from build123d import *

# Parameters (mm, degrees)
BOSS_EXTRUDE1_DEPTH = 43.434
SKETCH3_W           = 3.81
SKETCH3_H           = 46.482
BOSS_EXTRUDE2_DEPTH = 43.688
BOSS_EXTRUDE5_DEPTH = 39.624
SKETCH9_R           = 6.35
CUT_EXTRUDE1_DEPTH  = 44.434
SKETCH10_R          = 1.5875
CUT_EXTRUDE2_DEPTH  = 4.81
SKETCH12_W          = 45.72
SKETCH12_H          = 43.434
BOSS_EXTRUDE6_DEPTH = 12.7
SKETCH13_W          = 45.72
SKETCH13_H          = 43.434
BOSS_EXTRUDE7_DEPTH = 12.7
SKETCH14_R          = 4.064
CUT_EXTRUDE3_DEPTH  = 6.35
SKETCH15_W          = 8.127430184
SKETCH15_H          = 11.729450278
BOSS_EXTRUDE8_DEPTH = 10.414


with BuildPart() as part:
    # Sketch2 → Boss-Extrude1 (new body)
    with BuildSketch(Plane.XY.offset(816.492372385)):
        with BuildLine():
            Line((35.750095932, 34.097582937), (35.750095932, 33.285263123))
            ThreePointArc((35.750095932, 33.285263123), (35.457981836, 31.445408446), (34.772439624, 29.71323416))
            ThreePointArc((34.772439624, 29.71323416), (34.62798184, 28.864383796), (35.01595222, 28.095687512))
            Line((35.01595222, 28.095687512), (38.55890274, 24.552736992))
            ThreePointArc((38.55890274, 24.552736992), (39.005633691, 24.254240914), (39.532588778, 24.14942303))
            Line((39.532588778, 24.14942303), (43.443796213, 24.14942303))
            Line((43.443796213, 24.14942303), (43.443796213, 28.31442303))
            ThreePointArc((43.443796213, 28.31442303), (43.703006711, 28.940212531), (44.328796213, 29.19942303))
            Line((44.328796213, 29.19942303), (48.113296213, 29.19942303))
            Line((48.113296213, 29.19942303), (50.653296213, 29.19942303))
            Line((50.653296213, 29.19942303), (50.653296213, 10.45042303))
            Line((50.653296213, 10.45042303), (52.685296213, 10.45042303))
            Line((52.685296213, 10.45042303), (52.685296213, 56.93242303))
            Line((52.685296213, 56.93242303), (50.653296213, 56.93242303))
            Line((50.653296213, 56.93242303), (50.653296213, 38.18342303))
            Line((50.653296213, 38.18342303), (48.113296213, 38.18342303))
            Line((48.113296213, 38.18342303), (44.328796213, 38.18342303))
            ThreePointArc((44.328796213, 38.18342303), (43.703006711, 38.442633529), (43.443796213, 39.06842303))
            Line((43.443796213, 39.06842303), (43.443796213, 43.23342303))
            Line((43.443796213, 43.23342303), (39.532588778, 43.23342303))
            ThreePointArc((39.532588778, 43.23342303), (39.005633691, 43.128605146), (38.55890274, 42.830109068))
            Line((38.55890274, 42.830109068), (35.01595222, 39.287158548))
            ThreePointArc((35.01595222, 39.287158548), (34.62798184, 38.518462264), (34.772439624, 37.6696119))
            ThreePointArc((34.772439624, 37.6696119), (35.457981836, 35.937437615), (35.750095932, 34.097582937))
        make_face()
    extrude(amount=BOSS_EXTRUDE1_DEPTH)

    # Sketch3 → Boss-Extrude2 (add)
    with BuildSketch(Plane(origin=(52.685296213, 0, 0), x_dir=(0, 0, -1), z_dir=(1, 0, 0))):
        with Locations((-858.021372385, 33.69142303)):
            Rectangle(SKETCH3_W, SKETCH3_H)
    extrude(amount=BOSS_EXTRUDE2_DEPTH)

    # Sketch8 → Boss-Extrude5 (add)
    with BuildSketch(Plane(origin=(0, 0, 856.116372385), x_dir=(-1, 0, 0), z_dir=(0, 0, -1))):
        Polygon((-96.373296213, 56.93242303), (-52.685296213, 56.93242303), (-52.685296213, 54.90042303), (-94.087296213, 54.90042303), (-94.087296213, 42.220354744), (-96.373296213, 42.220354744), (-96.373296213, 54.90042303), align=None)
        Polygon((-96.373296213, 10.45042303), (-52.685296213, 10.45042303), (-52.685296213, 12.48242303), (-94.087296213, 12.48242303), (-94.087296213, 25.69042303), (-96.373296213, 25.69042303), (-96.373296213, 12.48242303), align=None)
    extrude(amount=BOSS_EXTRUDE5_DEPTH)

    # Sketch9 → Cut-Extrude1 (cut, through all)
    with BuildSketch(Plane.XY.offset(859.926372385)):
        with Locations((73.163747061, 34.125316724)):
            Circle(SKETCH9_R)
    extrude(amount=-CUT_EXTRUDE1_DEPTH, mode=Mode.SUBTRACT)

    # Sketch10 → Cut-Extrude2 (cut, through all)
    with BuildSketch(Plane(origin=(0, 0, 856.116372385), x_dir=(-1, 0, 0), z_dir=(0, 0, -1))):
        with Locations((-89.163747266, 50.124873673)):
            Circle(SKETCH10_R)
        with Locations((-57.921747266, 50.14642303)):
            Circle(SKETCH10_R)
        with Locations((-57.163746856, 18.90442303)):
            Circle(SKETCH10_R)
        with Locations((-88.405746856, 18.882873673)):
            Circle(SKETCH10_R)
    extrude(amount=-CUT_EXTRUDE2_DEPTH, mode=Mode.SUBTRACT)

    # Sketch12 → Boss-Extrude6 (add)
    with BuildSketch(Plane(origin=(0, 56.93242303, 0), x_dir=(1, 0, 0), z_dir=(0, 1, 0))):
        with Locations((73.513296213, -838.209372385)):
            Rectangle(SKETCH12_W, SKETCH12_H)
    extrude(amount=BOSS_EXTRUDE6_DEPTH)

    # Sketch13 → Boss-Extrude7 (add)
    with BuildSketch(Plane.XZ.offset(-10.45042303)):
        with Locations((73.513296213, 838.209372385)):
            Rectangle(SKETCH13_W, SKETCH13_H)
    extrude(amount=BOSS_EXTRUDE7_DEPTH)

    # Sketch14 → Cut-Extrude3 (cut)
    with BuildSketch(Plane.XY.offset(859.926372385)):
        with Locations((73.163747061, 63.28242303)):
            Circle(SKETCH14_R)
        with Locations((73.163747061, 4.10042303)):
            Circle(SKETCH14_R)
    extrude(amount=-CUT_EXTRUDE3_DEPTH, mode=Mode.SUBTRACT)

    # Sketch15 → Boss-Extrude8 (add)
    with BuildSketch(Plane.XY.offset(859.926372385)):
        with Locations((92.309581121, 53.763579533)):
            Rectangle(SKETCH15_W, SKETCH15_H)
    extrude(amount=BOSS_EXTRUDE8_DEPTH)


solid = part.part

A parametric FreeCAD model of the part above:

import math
import FreeCAD as App
import Part
import Sketcher
from FreeCAD import Vector
Q = App.Units.Quantity

doc = App.newDocument("Part")
body = doc.addObject("PartDesign::Body", "Body")

sketch1 = body.newObject("Sketcher::SketchObject", "Sketch")
sketch1.AttachmentSupport = (doc.getObject("XY_Plane"), [""])
sketch1.MapMode = "FlatFace"
sketch1.AttachmentOffset = App.Placement(Vector(0, 0, 816.492372), App.Rotation())
sketch1.addGeometry(Part.LineSegment(Vector(35.8, 34.1, 0), Vector(35.8, 33.3, 0)), False)
sketch1.addGeometry(Part.ArcOfCircle(Part.Circle(Vector(27.3, 33.7, 0), Vector(0, 0, 1), 8.5), math.radians(-28), math.radians(-3)), False)
sketch1.addGeometry(Part.ArcOfCircle(Part.Circle(Vector(36, 29.1, 0), Vector(0, 0, 1), 1.4), math.radians(152), math.radians(225)), False)
sketch1.addGeometry(Part.LineSegment(Vector(35, 28.1, 0), Vector(38.6, 24.6, 0)), False)
sketch1.addGeometry(Part.ArcOfCircle(Part.Circle(Vector(39.5, 25.5, 0), Vector(0, 0, 1), 1.4), math.radians(-135), math.radians(-90)), False)
sketch1.addGeometry(Part.LineSegment(Vector(39.5, 24.1, 0), Vector(43.4, 24.1, 0)), False)
sketch1.addGeometry(Part.LineSegment(Vector(43.4, 24.1, 0), Vector(43.4, 28.3, 0)), False)
sketch1.addGeometry(Part.ArcOfCircle(Part.Circle(Vector(44.3, 28.3, 0), Vector(0, 0, 1), 0.9), math.radians(90), math.radians(180)), False)
sketch1.addGeometry(Part.LineSegment(Vector(44.3, 29.2, 0), Vector(50.7, 29.2, 0)), False)
sketch1.addGeometry(Part.LineSegment(Vector(50.7, 29.2, 0), Vector(50.7, 10.5, 0)), False)
sketch1.addGeometry(Part.LineSegment(Vector(50.7, 10.5, 0), Vector(52.7, 10.5, 0)), False)
sketch1.addGeometry(Part.LineSegment(Vector(52.7, 10.5, 0), Vector(52.7, 56.9, 0)), False)
sketch1.addGeometry(Part.LineSegment(Vector(52.7, 56.9, 0), Vector(50.7, 56.9, 0)), False)
sketch1.addGeometry(Part.LineSegment(Vector(50.7, 56.9, 0), Vector(50.7, 38.2, 0)), False)
sketch1.addGeometry(Part.LineSegment(Vector(50.7, 38.2, 0), Vector(44.3, 38.2, 0)), False)
sketch1.addGeometry(Part.ArcOfCircle(Part.Circle(Vector(44.3, 39.1, 0), Vector(0, 0, 1), 0.9), math.radians(180), math.radians(270)), False)
sketch1.addGeometry(Part.LineSegment(Vector(43.4, 39.1, 0), Vector(43.4, 43.2, 0)), False)
sketch1.addGeometry(Part.LineSegment(Vector(43.4, 43.2, 0), Vector(39.5, 43.2, 0)), False)
sketch1.addGeometry(Part.ArcOfCircle(Part.Circle(Vector(39.5, 41.9, 0), Vector(0, 0, 1), 1.4), math.radians(90), math.radians(135)), False)
sketch1.addGeometry(Part.LineSegment(Vector(38.6, 42.8, 0), Vector(35, 39.3, 0)), False)
sketch1.addGeometry(Part.ArcOfCircle(Part.Circle(Vector(36, 38.3, 0), Vector(0, 0, 1), 1.4), math.radians(135), math.radians(208)), False)
sketch1.addGeometry(Part.ArcOfCircle(Part.Circle(Vector(27.3, 33.7, 0), Vector(0, 0, 1), 8.5), math.radians(3), math.radians(28)), False)
sketch1.addConstraint(Sketcher.Constraint("Coincident", 0, 2, 1, 2))
sketch1.addConstraint(Sketcher.Constraint("Tangent", 1, 1, 2, 1))
sketch1.addConstraint(Sketcher.Constraint("Tangent", 2, 2, 3, 1))
sketch1.addConstraint(Sketcher.Constraint("Tangent", 3, 2, 4, 1))
sketch1.addConstraint(Sketcher.Constraint("Tangent", 4, 2, 5, 1))
sketch1.addConstraint(Sketcher.Constraint("Coincident", 5, 2, 6, 1))
sketch1.addConstraint(Sketcher.Constraint("Tangent", 6, 2, 7, 2))
sketch1.addConstraint(Sketcher.Constraint("Tangent", 7, 1, 8, 1))
sketch1.addConstraint(Sketcher.Constraint("Coincident", 8, 2, 9, 1))
sketch1.addConstraint(Sketcher.Constraint("Coincident", 9, 2, 10, 1))
sketch1.addConstraint(Sketcher.Constraint("Coincident", 10, 2, 11, 1))
sketch1.addConstraint(Sketcher.Constraint("Coincident", 11, 2, 12, 1))
sketch1.addConstraint(Sketcher.Constraint("Coincident", 12, 2, 13, 1))
sketch1.addConstraint(Sketcher.Constraint("Coincident", 13, 2, 14, 1))
sketch1.addConstraint(Sketcher.Constraint("Tangent", 14, 2, 15, 2))
sketch1.addConstraint(Sketcher.Constraint("Tangent", 15, 1, 16, 1))
sketch1.addConstraint(Sketcher.Constraint("Coincident", 16, 2, 17, 1))
sketch1.addConstraint(Sketcher.Constraint("Tangent", 17, 2, 18, 1))
sketch1.addConstraint(Sketcher.Constraint("Tangent", 18, 2, 19, 1))
sketch1.addConstraint(Sketcher.Constraint("Tangent", 19, 2, 20, 1))
sketch1.addConstraint(Sketcher.Constraint("Tangent", 20, 2, 21, 2))
sketch1.addConstraint(Sketcher.Constraint("Coincident", 21, 1, 0, 1))
sketch1.addConstraint(Sketcher.Constraint("Vertical", 0))
sketch1.addConstraint(Sketcher.Constraint("Horizontal", 5))
sketch1.addConstraint(Sketcher.Constraint("Vertical", 6))
sketch1.addConstraint(Sketcher.Constraint("Horizontal", 8))
sketch1.addConstraint(Sketcher.Constraint("Vertical", 9))
sketch1.addConstraint(Sketcher.Constraint("Horizontal", 10))
sketch1.addConstraint(Sketcher.Constraint("Vertical", 11))
sketch1.addConstraint(Sketcher.Constraint("Horizontal", 12))
sketch1.addConstraint(Sketcher.Constraint("Vertical", 13))
sketch1.addConstraint(Sketcher.Constraint("Horizontal", 14))
sketch1.addConstraint(Sketcher.Constraint("Vertical", 16))
sketch1.addConstraint(Sketcher.Constraint("Horizontal", 17))
sketch1.addConstraint(Sketcher.Constraint("Coincident", 21, 3, 1, 3))
sketch1.addConstraint(Sketcher.Constraint("Equal", 2, 4))
sketch1.addConstraint(Sketcher.Constraint("Equal", 7, 15))
sketch1.addConstraint(Sketcher.Constraint("Equal", 4, 18))
sketch1.addConstraint(Sketcher.Constraint("Equal", 18, 20))
sketch1.addConstraint(Sketcher.Constraint("Equal", 1, 21))
sketch1.addConstraint(Sketcher.Constraint("Perpendicular", 3, 19))
sketch1.addConstraint(Sketcher.Constraint("Vertical", 7, 3, 15, 3))
sketch1.addConstraint(Sketcher.Constraint("Vertical", 4, 3, 18, 3))
sketch1.addConstraint(Sketcher.Constraint("Vertical", 2, 3, 20, 3))
sketch1.addConstraint(Sketcher.Constraint("Vertical", 9, 2, 12, 2))
sketch1.addConstraint(Sketcher.Constraint("Vertical", 3, 2, 18, 2))
sketch1.addConstraint(Sketcher.Constraint("Equal", 9, 13))
sketch1.addConstraint(Sketcher.Constraint("Equal", 6, 16))
sketch1.addConstraint(Sketcher.Constraint("DistanceX", 10, 1, 10, 2, Q("0.08 in")))
sketch1.addConstraint(Sketcher.Constraint("DistanceY", 11, 1, 11, 2, Q("1.83 in")))
sketch1.addConstraint(Sketcher.Constraint("Radius", 1, 8.508))
sketch1.addConstraint(Sketcher.Constraint("Radius", 2, 1.377))
sketch1.addConstraint(Sketcher.Constraint("Radius", 7, 0.885))
sketch1.addConstraint(Sketcher.Constraint("DistanceX", 8, 1, 8, 2, 6.3245))
sketch1.addConstraint(Sketcher.Constraint("DistanceY", 6, 1, 6, 2, 4.165))
sketch1.addConstraint(Sketcher.Constraint("DistanceY", 9, 2, 9, 1, 18.749))
sketch1.addConstraint(Sketcher.Constraint("DistanceY", 0, 2, 0, 1, 0.81232))
sketch1.addConstraint(Sketcher.Constraint("DistanceX", 1, 3, 7, 3, 17.077))
sketch1.addConstraint(Sketcher.Constraint("DistanceY", 2, 3, 20, 3, 9.244099))
sketch1.addConstraint(Sketcher.Constraint("DistanceX", -1, 1, 2, 3, 35.989638))
sketch1.addConstraint(Sketcher.Constraint("DistanceY", -1, 1, 18, 2, 42.830109))
pad1 = body.newObject("PartDesign::Pad", "Pad")
pad1.Profile = sketch1
pad1.Length = Q("1.71 in")

sketch2 = body.newObject("Sketcher::SketchObject", "Sketch001")
sketch2.AttachmentSupport = (doc.getObject("YZ_Plane"), [""])
sketch2.MapMode = "FlatFace"
sketch2.AttachmentOffset = App.Placement(Vector(0, 0, 52.685296), App.Rotation())
sketch2.addGeometry(Part.LineSegment(Vector(56.9, 859.9, 0), Vector(10.5, 859.9, 0)), False)
sketch2.addGeometry(Part.LineSegment(Vector(10.5, 859.9, 0), Vector(10.5, 856.1, 0)), False)
sketch2.addGeometry(Part.LineSegment(Vector(10.5, 856.1, 0), Vector(56.9, 856.1, 0)), False)
sketch2.addGeometry(Part.LineSegment(Vector(56.9, 856.1, 0), Vector(56.9, 859.9, 0)), False)
sketch2.addConstraint(Sketcher.Constraint("Coincident", 0, 2, 1, 1))
sketch2.addConstraint(Sketcher.Constraint("Coincident", 1, 2, 2, 1))
sketch2.addConstraint(Sketcher.Constraint("Coincident", 2, 2, 3, 1))
sketch2.addConstraint(Sketcher.Constraint("Coincident", 3, 2, 0, 1))
sketch2.addConstraint(Sketcher.Constraint("Horizontal", 0))
sketch2.addConstraint(Sketcher.Constraint("Vertical", 1))
sketch2.addConstraint(Sketcher.Constraint("Horizontal", 2))
sketch2.addConstraint(Sketcher.Constraint("Vertical", 3))
sketch2.addConstraint(Sketcher.Constraint("DistanceX", 0, 2, 0, 1, Q("1.83 in")))
sketch2.addConstraint(Sketcher.Constraint("DistanceY", 1, 2, 1, 1, Q("0.15 in")))
sketch2.addConstraint(Sketcher.Constraint("DistanceX", -1, 1, 0, 2, 10.450423))
sketch2.addConstraint(Sketcher.Constraint("DistanceY", -1, 1, 0, 2, 859.926372))
pad2 = body.newObject("PartDesign::Pad", "Pad001")
pad2.Profile = sketch2
pad2.Length = Q("1.72 in")

sketch3 = body.newObject("Sketcher::SketchObject", "Sketch002")
sketch3.AttachmentSupport = (doc.getObject("XY_Plane"), [""])
sketch3.MapMode = "FlatFace"
sketch3.AttachmentOffset = App.Placement(Vector(0, 0, 856.116372), App.Rotation())
sketch3.addGeometry(Part.LineSegment(Vector(52.7, 56.9, 0), Vector(96.4, 56.9, 0)), False)
sketch3.addGeometry(Part.LineSegment(Vector(96.4, 56.9, 0), Vector(96.4, 42.2, 0)), False)
sketch3.addGeometry(Part.LineSegment(Vector(96.4, 42.2, 0), Vector(94.1, 42.2, 0)), False)
sketch3.addGeometry(Part.LineSegment(Vector(94.1, 42.2, 0), Vector(94.1, 54.9, 0)), False)
sketch3.addGeometry(Part.LineSegment(Vector(94.1, 54.9, 0), Vector(52.7, 54.9, 0)), False)
sketch3.addGeometry(Part.LineSegment(Vector(52.7, 54.9, 0), Vector(52.7, 56.9, 0)), False)
sketch3.addGeometry(Part.LineSegment(Vector(96.4, 10.5, 0), Vector(52.7, 10.5, 0)), False)
sketch3.addGeometry(Part.LineSegment(Vector(52.7, 10.5, 0), Vector(52.7, 12.5, 0)), False)
sketch3.addGeometry(Part.LineSegment(Vector(52.7, 12.5, 0), Vector(94.1, 12.5, 0)), False)
sketch3.addGeometry(Part.LineSegment(Vector(94.1, 12.5, 0), Vector(94.1, 25.7, 0)), False)
sketch3.addGeometry(Part.LineSegment(Vector(94.1, 25.7, 0), Vector(96.4, 25.7, 0)), False)
sketch3.addGeometry(Part.LineSegment(Vector(96.4, 25.7, 0), Vector(96.4, 10.5, 0)), False)
sketch3.addConstraint(Sketcher.Constraint("Coincident", 0, 2, 1, 1))
sketch3.addConstraint(Sketcher.Constraint("Coincident", 1, 2, 2, 1))
sketch3.addConstraint(Sketcher.Constraint("Coincident", 2, 2, 3, 1))
sketch3.addConstraint(Sketcher.Constraint("Coincident", 3, 2, 4, 1))
sketch3.addConstraint(Sketcher.Constraint("Coincident", 4, 2, 5, 1))
sketch3.addConstraint(Sketcher.Constraint("Coincident", 5, 2, 0, 1))
sketch3.addConstraint(Sketcher.Constraint("Coincident", 6, 2, 7, 1))
sketch3.addConstraint(Sketcher.Constraint("Coincident", 7, 2, 8, 1))
sketch3.addConstraint(Sketcher.Constraint("Coincident", 8, 2, 9, 1))
sketch3.addConstraint(Sketcher.Constraint("Coincident", 9, 2, 10, 1))
sketch3.addConstraint(Sketcher.Constraint("Coincident", 10, 2, 11, 1))
sketch3.addConstraint(Sketcher.Constraint("Coincident", 11, 2, 6, 1))
sketch3.addConstraint(Sketcher.Constraint("Horizontal", 0))
sketch3.addConstraint(Sketcher.Constraint("Vertical", 1))
sketch3.addConstraint(Sketcher.Constraint("Horizontal", 2))
sketch3.addConstraint(Sketcher.Constraint("Vertical", 3))
sketch3.addConstraint(Sketcher.Constraint("Horizontal", 4))
sketch3.addConstraint(Sketcher.Constraint("Vertical", 5))
sketch3.addConstraint(Sketcher.Constraint("Horizontal", 6))
sketch3.addConstraint(Sketcher.Constraint("Vertical", 7))
sketch3.addConstraint(Sketcher.Constraint("Horizontal", 8))
sketch3.addConstraint(Sketcher.Constraint("Vertical", 9))
sketch3.addConstraint(Sketcher.Constraint("Horizontal", 10))
sketch3.addConstraint(Sketcher.Constraint("Vertical", 11))
sketch3.addConstraint(Sketcher.Constraint("Vertical", 5, 2, 6, 2))
sketch3.addConstraint(Sketcher.Constraint("Vertical", 3, 2, 8, 2))
sketch3.addConstraint(Sketcher.Constraint("Vertical", 1, 2, 10, 2))
sketch3.addConstraint(Sketcher.Constraint("Equal", 5, 7))
sketch3.addConstraint(Sketcher.Constraint("DistanceY", 11, 2, 11, 1, Q("0.6 in")))
sketch3.addConstraint(Sketcher.Constraint("DistanceX", 0, 1, 0, 2, Q("1.72 in")))
sketch3.addConstraint(Sketcher.Constraint("DistanceX", 2, 2, 2, 1, Q("0.09 in")))
sketch3.addConstraint(Sketcher.Constraint("DistanceY", 5, 1, 5, 2, Q("0.08 in")))
sketch3.addConstraint(Sketcher.Constraint("DistanceY", 6, 2, 4, 2, Q("1.75 in")))
sketch3.addConstraint(Sketcher.Constraint("DistanceY", 1, 2, 1, 1, 14.712068))
sketch3.addConstraint(Sketcher.Constraint("DistanceX", -1, 1, 0, 2, 96.373296))
sketch3.addConstraint(Sketcher.Constraint("DistanceY", -1, 1, 0, 2, 56.932423))
pad3 = body.newObject("PartDesign::Pad", "Pad002")
pad3.Profile = sketch3
pad3.Length = Q("1.56 in")
pad3.Reversed = True

sketch4 = body.newObject("Sketcher::SketchObject", "Sketch003")
sketch4.AttachmentSupport = (doc.getObject("XY_Plane"), [""])
sketch4.MapMode = "FlatFace"
sketch4.AttachmentOffset = App.Placement(Vector(0, 0, 859.926372), App.Rotation())
sketch4.addGeometry(Part.Circle(Vector(73, 34, 0), Vector(0, 0, 1), 6), False)
sketch4.addConstraint(Sketcher.Constraint("Diameter", 0, Q("0.5 in")))
sketch4.addConstraint(Sketcher.Constraint("DistanceX", -1, 1, 0, 3, 73.163747))
sketch4.addConstraint(Sketcher.Constraint("DistanceY", -1, 1, 0, 3, 34.125317))
pocket1 = body.newObject("PartDesign::Pocket", "Pocket")
pocket1.Profile = sketch4
pocket1.Type = "ThroughAll"

sketch5 = body.newObject("Sketcher::SketchObject", "Sketch004")
sketch5.AttachmentSupport = (doc.getObject("XY_Plane"), [""])
sketch5.MapMode = "FlatFace"
sketch5.AttachmentOffset = App.Placement(Vector(0, 0, 856.116372), App.Rotation())
sketch5.addGeometry(Part.Circle(Vector(89.2, 50.1, 0), Vector(0, 0, 1), 1.6), False)
sketch5.addGeometry(Part.Circle(Vector(57.9, 50.1, 0), Vector(0, 0, 1), 1.6), False)
sketch5.addGeometry(Part.Circle(Vector(57.2, 18.9, 0), Vector(0, 0, 1), 1.6), False)
sketch5.addGeometry(Part.Circle(Vector(88.4, 18.9, 0), Vector(0, 0, 1), 1.6), False)
sketch5.addConstraint(Sketcher.Constraint("Equal", 0, 1))
sketch5.addConstraint(Sketcher.Constraint("Equal", 1, 2))
sketch5.addConstraint(Sketcher.Constraint("Equal", 2, 3))
sketch5.addConstraint(Sketcher.Constraint("Diameter", 0, Q("0.125 in")))
sketch5.addConstraint(Sketcher.Constraint("DistanceX", 1, 3, 0, 3, Q("1.23 in")))
sketch5.addConstraint(Sketcher.Constraint("DistanceY", 2, 3, 1, 3, Q("1.23 in")))
sketch5.addConstraint(Sketcher.Constraint("DistanceX", 2, 3, 3, 3, Q("1.23 in")))
sketch5.addConstraint(Sketcher.Constraint("DistanceY", 3, 3, 0, 3, Q("1.23 in")))
sketch5.addConstraint(Sketcher.Constraint("DistanceX", 2, 3, 1, 3, 0.758))
sketch5.addConstraint(Sketcher.Constraint("DistanceY", 0, 3, 1, 3, 0.021549))
sketch5.addConstraint(Sketcher.Constraint("DistanceX", -1, 1, 0, 3, 89.163747))
sketch5.addConstraint(Sketcher.Constraint("DistanceY", -1, 1, 0, 3, 50.124874))
pocket2 = body.newObject("PartDesign::Pocket", "Pocket001")
pocket2.Profile = sketch5
pocket2.Type = "ThroughAll"
pocket2.Reversed = True

sketch6 = body.newObject("Sketcher::SketchObject", "Sketch005")
sketch6.AttachmentSupport = (doc.getObject("XZ_Plane"), [""])
sketch6.MapMode = "FlatFace"
sketch6.AttachmentOffset = App.Placement(Vector(0, 0, -56.932423), App.Rotation())
sketch6.addGeometry(Part.LineSegment(Vector(51, 816, 0), Vector(51, 860, 0)), False)
sketch6.addGeometry(Part.LineSegment(Vector(51, 860, 0), Vector(96, 860, 0)), False)
sketch6.addGeometry(Part.LineSegment(Vector(96, 860, 0), Vector(96, 816, 0)), False)
sketch6.addGeometry(Part.LineSegment(Vector(96, 816, 0), Vector(51, 816, 0)), False)
sketch6.addConstraint(Sketcher.Constraint("Coincident", 0, 2, 1, 1))
sketch6.addConstraint(Sketcher.Constraint("Coincident", 1, 2, 2, 1))
sketch6.addConstraint(Sketcher.Constraint("Coincident", 2, 2, 3, 1))
sketch6.addConstraint(Sketcher.Constraint("Coincident", 3, 2, 0, 1))
sketch6.addConstraint(Sketcher.Constraint("Vertical", 0))
sketch6.addConstraint(Sketcher.Constraint("Horizontal", 1))
sketch6.addConstraint(Sketcher.Constraint("Vertical", 2))
sketch6.addConstraint(Sketcher.Constraint("Horizontal", 3))
sketch6.addConstraint(Sketcher.Constraint("DistanceX", 1, 1, 1, 2, Q("1.8 in")))
sketch6.addConstraint(Sketcher.Constraint("DistanceY", 0, 1, 0, 2, Q("1.71 in")))
sketch6.addConstraint(Sketcher.Constraint("DistanceX", -1, 1, 0, 2, 50.653296))
sketch6.addConstraint(Sketcher.Constraint("DistanceY", -1, 1, 0, 2, 859.926372))
pad4 = body.newObject("PartDesign::Pad", "Pad003")
pad4.Profile = sketch6
pad4.Length = Q("0.5 in")
pad4.Reversed = True

sketch7 = body.newObject("Sketcher::SketchObject", "Sketch006")
sketch7.AttachmentSupport = (doc.getObject("XZ_Plane"), [""])
sketch7.MapMode = "FlatFace"
sketch7.AttachmentOffset = App.Placement(Vector(0, 0, -10.450423), App.Rotation())
sketch7.addGeometry(Part.LineSegment(Vector(51, 860, 0), Vector(51, 816, 0)), False)
sketch7.addGeometry(Part.LineSegment(Vector(51, 816, 0), Vector(96, 816, 0)), False)
sketch7.addGeometry(Part.LineSegment(Vector(96, 816, 0), Vector(96, 860, 0)), False)
sketch7.addGeometry(Part.LineSegment(Vector(96, 860, 0), Vector(51, 860, 0)), False)
sketch7.addConstraint(Sketcher.Constraint("Coincident", 0, 2, 1, 1))
sketch7.addConstraint(Sketcher.Constraint("Coincident", 1, 2, 2, 1))
sketch7.addConstraint(Sketcher.Constraint("Coincident", 2, 2, 3, 1))
sketch7.addConstraint(Sketcher.Constraint("Coincident", 3, 2, 0, 1))
sketch7.addConstraint(Sketcher.Constraint("Vertical", 0))
sketch7.addConstraint(Sketcher.Constraint("Horizontal", 1))
sketch7.addConstraint(Sketcher.Constraint("Vertical", 2))
sketch7.addConstraint(Sketcher.Constraint("Horizontal", 3))
sketch7.addConstraint(Sketcher.Constraint("DistanceX", 1, 1, 1, 2, Q("1.8 in")))
sketch7.addConstraint(Sketcher.Constraint("DistanceY", 0, 2, 0, 1, Q("1.71 in")))
sketch7.addConstraint(Sketcher.Constraint("DistanceX", -1, 1, 0, 2, 50.653296))
sketch7.addConstraint(Sketcher.Constraint("DistanceY", -1, 1, 0, 2, 816.492372))
pad5 = body.newObject("PartDesign::Pad", "Pad004")
pad5.Profile = sketch7
pad5.Length = Q("0.5 in")

sketch8 = body.newObject("Sketcher::SketchObject", "Sketch007")
sketch8.AttachmentSupport = (doc.getObject("XY_Plane"), [""])
sketch8.MapMode = "FlatFace"
sketch8.AttachmentOffset = App.Placement(Vector(0, 0, 859.926372), App.Rotation())
sketch8.addGeometry(Part.Circle(Vector(73.2, 63.3, 0), Vector(0, 0, 1), 4.1), False)
sketch8.addGeometry(Part.Circle(Vector(73.2, 4.1, 0), Vector(0, 0, 1), 4.1), False)
sketch8.addConstraint(Sketcher.Constraint("Equal", 0, 1))
sketch8.addConstraint(Sketcher.Constraint("Vertical", 0, 3, 1, 3))
sketch8.addConstraint(Sketcher.Constraint("Diameter", 0, Q("0.32 in")))
sketch8.addConstraint(Sketcher.Constraint("DistanceY", 1, 3, 0, 3, Q("2.33 in")))
sketch8.addConstraint(Sketcher.Constraint("DistanceX", -1, 1, 0, 3, 73.163747))
sketch8.addConstraint(Sketcher.Constraint("DistanceY", -1, 1, 0, 3, 63.282423))
pocket3 = body.newObject("PartDesign::Pocket", "Pocket002")
pocket3.Profile = sketch8
pocket3.Length = Q("0.25 in")

sketch9 = body.newObject("Sketcher::SketchObject", "Sketch008")
sketch9.AttachmentSupport = (doc.getObject("XY_Plane"), [""])
sketch9.MapMode = "FlatFace"
sketch9.AttachmentOffset = App.Placement(Vector(0, 0, 859.926372), App.Rotation())
sketch9.addGeometry(Part.LineSegment(Vector(88, 60, 0), Vector(88, 48, 0)), False)
sketch9.addGeometry(Part.LineSegment(Vector(88, 48, 0), Vector(96, 48, 0)), False)
sketch9.addGeometry(Part.LineSegment(Vector(96, 48, 0), Vector(96, 60, 0)), False)
sketch9.addGeometry(Part.LineSegment(Vector(96, 60, 0), Vector(88, 60, 0)), False)
sketch9.addConstraint(Sketcher.Constraint("Coincident", 0, 2, 1, 1))
sketch9.addConstraint(Sketcher.Constraint("Coincident", 1, 2, 2, 1))
sketch9.addConstraint(Sketcher.Constraint("Coincident", 2, 2, 3, 1))
sketch9.addConstraint(Sketcher.Constraint("Coincident", 3, 2, 0, 1))
sketch9.addConstraint(Sketcher.Constraint("Vertical", 0))
sketch9.addConstraint(Sketcher.Constraint("Horizontal", 1))
sketch9.addConstraint(Sketcher.Constraint("Vertical", 2))
sketch9.addConstraint(Sketcher.Constraint("Horizontal", 3))
sketch9.addConstraint(Sketcher.Constraint("DistanceX", 1, 1, 1, 2, 8.12743))
sketch9.addConstraint(Sketcher.Constraint("DistanceY", 0, 2, 0, 1, 11.72945))
sketch9.addConstraint(Sketcher.Constraint("DistanceX", -1, 1, 0, 2, 88.245866))
sketch9.addConstraint(Sketcher.Constraint("DistanceY", -1, 1, 0, 2, 47.898854))
pad6 = body.newObject("PartDesign::Pad", "Pad005")
pad6.Profile = sketch9
pad6.Length = Q("0.41 in")

doc.recompute()
